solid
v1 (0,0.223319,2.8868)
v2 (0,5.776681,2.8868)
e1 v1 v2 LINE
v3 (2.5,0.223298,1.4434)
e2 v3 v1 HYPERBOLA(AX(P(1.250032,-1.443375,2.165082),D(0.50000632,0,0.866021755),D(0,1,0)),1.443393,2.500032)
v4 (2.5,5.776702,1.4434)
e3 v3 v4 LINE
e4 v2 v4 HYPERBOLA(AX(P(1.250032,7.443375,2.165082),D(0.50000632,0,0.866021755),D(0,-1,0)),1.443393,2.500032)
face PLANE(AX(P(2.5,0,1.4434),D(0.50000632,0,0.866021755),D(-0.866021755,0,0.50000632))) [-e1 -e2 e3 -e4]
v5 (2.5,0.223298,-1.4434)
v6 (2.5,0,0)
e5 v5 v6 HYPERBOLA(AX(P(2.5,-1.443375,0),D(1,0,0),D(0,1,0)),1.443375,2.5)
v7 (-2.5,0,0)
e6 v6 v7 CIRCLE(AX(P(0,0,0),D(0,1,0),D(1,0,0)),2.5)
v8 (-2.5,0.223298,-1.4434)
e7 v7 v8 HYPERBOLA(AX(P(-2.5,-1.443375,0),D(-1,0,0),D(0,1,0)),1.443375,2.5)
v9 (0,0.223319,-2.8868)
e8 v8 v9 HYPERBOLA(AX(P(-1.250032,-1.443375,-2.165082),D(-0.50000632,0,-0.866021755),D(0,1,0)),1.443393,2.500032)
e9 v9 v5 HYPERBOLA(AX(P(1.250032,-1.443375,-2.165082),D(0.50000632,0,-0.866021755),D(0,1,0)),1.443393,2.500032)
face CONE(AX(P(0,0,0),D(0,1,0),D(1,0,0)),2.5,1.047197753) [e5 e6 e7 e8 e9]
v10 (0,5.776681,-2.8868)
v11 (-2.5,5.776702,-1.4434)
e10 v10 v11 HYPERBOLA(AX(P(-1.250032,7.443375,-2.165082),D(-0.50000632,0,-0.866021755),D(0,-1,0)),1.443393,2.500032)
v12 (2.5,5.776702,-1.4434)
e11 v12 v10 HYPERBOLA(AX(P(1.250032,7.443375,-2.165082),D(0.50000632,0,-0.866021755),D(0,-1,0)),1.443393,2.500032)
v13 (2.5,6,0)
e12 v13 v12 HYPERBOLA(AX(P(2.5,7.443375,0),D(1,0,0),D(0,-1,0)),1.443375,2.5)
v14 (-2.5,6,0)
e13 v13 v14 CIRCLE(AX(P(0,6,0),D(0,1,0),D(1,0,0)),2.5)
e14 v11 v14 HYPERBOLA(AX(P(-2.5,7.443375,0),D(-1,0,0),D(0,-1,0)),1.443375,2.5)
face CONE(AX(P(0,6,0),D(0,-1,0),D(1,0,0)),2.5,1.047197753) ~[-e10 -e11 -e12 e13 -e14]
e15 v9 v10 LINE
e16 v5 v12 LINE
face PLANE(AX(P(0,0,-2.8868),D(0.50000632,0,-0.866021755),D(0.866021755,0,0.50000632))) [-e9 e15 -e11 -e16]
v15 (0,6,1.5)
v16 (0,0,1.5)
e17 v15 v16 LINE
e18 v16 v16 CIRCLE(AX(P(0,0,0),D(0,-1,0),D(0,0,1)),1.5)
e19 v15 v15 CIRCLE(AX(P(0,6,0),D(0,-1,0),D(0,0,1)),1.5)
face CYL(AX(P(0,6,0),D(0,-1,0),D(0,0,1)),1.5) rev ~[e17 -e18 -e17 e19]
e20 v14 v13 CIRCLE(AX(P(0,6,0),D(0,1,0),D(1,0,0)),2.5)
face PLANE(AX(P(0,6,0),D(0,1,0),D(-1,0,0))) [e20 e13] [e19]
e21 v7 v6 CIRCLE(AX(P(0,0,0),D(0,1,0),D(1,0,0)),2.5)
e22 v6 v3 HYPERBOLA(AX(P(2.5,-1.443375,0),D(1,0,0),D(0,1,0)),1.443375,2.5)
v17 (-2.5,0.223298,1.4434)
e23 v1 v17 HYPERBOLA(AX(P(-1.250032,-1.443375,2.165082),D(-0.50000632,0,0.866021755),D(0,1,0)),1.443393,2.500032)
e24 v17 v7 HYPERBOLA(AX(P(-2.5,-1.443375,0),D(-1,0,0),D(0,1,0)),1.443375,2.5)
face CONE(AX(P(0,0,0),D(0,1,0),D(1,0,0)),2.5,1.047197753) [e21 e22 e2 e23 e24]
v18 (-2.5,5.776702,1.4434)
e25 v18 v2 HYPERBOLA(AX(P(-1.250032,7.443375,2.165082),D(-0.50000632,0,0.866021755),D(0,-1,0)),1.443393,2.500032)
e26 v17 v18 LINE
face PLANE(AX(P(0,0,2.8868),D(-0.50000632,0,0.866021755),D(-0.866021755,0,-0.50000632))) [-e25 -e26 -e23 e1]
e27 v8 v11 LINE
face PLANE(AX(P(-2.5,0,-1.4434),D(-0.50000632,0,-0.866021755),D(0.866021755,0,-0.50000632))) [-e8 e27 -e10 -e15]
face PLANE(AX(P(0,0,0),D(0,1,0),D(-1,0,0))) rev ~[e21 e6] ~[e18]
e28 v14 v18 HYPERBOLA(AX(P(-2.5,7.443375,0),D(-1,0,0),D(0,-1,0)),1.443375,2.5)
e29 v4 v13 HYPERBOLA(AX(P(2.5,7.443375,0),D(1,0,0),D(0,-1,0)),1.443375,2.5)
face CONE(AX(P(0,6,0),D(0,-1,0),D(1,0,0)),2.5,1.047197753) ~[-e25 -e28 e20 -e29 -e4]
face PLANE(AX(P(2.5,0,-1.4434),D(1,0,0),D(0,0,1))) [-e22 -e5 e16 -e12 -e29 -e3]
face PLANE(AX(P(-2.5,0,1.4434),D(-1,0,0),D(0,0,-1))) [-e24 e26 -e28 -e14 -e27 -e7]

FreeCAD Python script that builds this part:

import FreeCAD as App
import Part
import Sketcher
Q = App.Units.Quantity


def add_polygon(sketch, points):
    """Adds a closed chain of lines whose ends are joined by coincident constraints."""
    first, n = sketch.GeometryCount, len(points)
    for a, b in zip(points, points[1:] + points[:1]):
        sketch.addGeometry(Part.LineSegment(App.Vector(*a, 0), App.Vector(*b, 0)), False)
    for i in range(n):
        sketch.addConstraint(Sketcher.Constraint("Coincident", first + i, 2, first + (i + 1) % n, 1))

doc = App.newDocument("Part")
body = doc.addObject("PartDesign::Body", "Body")

sketch1 = doc.addObject("Sketcher::SketchObject", "Sketch")
body.addObject(sketch1)
sketch1.AttachmentSupport = (doc.XZ_Plane, [""])
sketch1.MapMode = "FlatFace"
add_polygon(sketch1, [(2.5, -1.4), (0, -2.9), (-2.5, -1.4), (-2.5, 1.4), (0, 2.9), (2.5, 1.4)])
sketch1.addConstraint(Sketcher.Constraint("Vertical", 2))
sketch1.addConstraint(Sketcher.Constraint("Vertical", 5))
sketch1.addConstraint(Sketcher.Constraint("Symmetric", 0, 2, 3, 2, -1, 1))
sketch1.addConstraint(Sketcher.Constraint("Symmetric", 1, 2, 4, 2, -1, 1))
sketch1.addConstraint(Sketcher.Constraint("PointOnObject", 0, 2, -2))
sketch1.addConstraint(Sketcher.Constraint("Parallel", 0, 3))
sketch1.addConstraint(Sketcher.Constraint("Horizontal", 2, 2, 4, 2))
sketch1.addConstraint(Sketcher.Constraint("DistanceX", 2, 2, 4, 2, 5.0))
sketch1.addConstraint(Sketcher.Constraint("Angle", 0, Q("-149.9996 deg")))
sketch1.addConstraint(Sketcher.Constraint("DistanceY", 2, 1, 2, 2, 2.8868))
pad1 = doc.addObject("PartDesign::Pad", "Pad")
body.addObject(pad1)
pad1.Profile = sketch1
pad1.Length = 6
pad1.Reversed = True

sketch2 = doc.addObject("Sketcher::SketchObject", "Sketch001")
body.addObject(sketch2)
sketch2.AttachmentSupport = (doc.XZ_Plane, [""])
sketch2.MapMode = "FlatFace"
sketch2.AttachmentOffset = App.Placement(App.Vector(0, 0, -6), App.Rotation())
sketch2.addGeometry(Part.Circle(App.Vector(0, 0, 0), App.Vector(0, 0, 1), 1.5), False)
sketch2.addConstraint(Sketcher.Constraint("Coincident", 0, 3, -1, 1))
sketch2.addConstraint(Sketcher.Constraint("Diameter", 0, 3.0))
doc.recompute()
hole = doc.addObject("PartDesign::Hole", "Hole")
body.addObject(hole)
hole.Profile = sketch2
hole.ThreadType = "None"
hole.Diameter = 3
hole.DepthType = "ThroughAll"
hole.Reversed = True

sketch3 = doc.addObject("Sketcher::SketchObject", "Sketch002")
body.addObject(sketch3)
sketch3.AttachmentSupport = (doc.XY_Plane, [""])
sketch3.MapMode = "FlatFace"
add_polygon(sketch3, [(4.5, 6), (2.5, 6), (4.5, 4.8)])
add_polygon(sketch3, [(4.5, 1.2), (2.5, 0), (4.5, 0)])
sketch3.addConstraint(Sketcher.Constraint("Horizontal", 0))
sketch3.addConstraint(Sketcher.Constraint("Vertical", 2))
sketch3.addConstraint(Sketcher.Constraint("Horizontal", 4))
sketch3.addConstraint(Sketcher.Constraint("Vertical", 5))
sketch3.addConstraint(Sketcher.Constraint("PointOnObject", 3, 2, -1))
sketch3.addConstraint(Sketcher.Constraint("Vertical", 0, 2, 3, 2))
sketch3.addConstraint(Sketcher.Constraint("Vertical", 2, 2, 4, 2))
sketch3.addConstraint(Sketcher.Constraint("Equal", 2, 5))
sketch3.addConstraint(Sketcher.Constraint("DistanceX", 0, 2, 0, 1, 2.0))
sketch3.addConstraint(Sketcher.Constraint("Angle", 1, Q("-30 deg")))
sketch3.addConstraint(Sketcher.Constraint("DistanceY", -1, 1, 0, 2, 6.0))
sketch3.addConstraint(Sketcher.Constraint("DistanceX", -1, 1, 0, 2, 2.5))
groove = doc.addObject("PartDesign::Groove", "Groove")
body.addObject(groove)
groove.Profile = sketch3
groove.ReferenceAxis = (sketch3, ["V_Axis"])
groove.Angle = 360

doc.recompute()
